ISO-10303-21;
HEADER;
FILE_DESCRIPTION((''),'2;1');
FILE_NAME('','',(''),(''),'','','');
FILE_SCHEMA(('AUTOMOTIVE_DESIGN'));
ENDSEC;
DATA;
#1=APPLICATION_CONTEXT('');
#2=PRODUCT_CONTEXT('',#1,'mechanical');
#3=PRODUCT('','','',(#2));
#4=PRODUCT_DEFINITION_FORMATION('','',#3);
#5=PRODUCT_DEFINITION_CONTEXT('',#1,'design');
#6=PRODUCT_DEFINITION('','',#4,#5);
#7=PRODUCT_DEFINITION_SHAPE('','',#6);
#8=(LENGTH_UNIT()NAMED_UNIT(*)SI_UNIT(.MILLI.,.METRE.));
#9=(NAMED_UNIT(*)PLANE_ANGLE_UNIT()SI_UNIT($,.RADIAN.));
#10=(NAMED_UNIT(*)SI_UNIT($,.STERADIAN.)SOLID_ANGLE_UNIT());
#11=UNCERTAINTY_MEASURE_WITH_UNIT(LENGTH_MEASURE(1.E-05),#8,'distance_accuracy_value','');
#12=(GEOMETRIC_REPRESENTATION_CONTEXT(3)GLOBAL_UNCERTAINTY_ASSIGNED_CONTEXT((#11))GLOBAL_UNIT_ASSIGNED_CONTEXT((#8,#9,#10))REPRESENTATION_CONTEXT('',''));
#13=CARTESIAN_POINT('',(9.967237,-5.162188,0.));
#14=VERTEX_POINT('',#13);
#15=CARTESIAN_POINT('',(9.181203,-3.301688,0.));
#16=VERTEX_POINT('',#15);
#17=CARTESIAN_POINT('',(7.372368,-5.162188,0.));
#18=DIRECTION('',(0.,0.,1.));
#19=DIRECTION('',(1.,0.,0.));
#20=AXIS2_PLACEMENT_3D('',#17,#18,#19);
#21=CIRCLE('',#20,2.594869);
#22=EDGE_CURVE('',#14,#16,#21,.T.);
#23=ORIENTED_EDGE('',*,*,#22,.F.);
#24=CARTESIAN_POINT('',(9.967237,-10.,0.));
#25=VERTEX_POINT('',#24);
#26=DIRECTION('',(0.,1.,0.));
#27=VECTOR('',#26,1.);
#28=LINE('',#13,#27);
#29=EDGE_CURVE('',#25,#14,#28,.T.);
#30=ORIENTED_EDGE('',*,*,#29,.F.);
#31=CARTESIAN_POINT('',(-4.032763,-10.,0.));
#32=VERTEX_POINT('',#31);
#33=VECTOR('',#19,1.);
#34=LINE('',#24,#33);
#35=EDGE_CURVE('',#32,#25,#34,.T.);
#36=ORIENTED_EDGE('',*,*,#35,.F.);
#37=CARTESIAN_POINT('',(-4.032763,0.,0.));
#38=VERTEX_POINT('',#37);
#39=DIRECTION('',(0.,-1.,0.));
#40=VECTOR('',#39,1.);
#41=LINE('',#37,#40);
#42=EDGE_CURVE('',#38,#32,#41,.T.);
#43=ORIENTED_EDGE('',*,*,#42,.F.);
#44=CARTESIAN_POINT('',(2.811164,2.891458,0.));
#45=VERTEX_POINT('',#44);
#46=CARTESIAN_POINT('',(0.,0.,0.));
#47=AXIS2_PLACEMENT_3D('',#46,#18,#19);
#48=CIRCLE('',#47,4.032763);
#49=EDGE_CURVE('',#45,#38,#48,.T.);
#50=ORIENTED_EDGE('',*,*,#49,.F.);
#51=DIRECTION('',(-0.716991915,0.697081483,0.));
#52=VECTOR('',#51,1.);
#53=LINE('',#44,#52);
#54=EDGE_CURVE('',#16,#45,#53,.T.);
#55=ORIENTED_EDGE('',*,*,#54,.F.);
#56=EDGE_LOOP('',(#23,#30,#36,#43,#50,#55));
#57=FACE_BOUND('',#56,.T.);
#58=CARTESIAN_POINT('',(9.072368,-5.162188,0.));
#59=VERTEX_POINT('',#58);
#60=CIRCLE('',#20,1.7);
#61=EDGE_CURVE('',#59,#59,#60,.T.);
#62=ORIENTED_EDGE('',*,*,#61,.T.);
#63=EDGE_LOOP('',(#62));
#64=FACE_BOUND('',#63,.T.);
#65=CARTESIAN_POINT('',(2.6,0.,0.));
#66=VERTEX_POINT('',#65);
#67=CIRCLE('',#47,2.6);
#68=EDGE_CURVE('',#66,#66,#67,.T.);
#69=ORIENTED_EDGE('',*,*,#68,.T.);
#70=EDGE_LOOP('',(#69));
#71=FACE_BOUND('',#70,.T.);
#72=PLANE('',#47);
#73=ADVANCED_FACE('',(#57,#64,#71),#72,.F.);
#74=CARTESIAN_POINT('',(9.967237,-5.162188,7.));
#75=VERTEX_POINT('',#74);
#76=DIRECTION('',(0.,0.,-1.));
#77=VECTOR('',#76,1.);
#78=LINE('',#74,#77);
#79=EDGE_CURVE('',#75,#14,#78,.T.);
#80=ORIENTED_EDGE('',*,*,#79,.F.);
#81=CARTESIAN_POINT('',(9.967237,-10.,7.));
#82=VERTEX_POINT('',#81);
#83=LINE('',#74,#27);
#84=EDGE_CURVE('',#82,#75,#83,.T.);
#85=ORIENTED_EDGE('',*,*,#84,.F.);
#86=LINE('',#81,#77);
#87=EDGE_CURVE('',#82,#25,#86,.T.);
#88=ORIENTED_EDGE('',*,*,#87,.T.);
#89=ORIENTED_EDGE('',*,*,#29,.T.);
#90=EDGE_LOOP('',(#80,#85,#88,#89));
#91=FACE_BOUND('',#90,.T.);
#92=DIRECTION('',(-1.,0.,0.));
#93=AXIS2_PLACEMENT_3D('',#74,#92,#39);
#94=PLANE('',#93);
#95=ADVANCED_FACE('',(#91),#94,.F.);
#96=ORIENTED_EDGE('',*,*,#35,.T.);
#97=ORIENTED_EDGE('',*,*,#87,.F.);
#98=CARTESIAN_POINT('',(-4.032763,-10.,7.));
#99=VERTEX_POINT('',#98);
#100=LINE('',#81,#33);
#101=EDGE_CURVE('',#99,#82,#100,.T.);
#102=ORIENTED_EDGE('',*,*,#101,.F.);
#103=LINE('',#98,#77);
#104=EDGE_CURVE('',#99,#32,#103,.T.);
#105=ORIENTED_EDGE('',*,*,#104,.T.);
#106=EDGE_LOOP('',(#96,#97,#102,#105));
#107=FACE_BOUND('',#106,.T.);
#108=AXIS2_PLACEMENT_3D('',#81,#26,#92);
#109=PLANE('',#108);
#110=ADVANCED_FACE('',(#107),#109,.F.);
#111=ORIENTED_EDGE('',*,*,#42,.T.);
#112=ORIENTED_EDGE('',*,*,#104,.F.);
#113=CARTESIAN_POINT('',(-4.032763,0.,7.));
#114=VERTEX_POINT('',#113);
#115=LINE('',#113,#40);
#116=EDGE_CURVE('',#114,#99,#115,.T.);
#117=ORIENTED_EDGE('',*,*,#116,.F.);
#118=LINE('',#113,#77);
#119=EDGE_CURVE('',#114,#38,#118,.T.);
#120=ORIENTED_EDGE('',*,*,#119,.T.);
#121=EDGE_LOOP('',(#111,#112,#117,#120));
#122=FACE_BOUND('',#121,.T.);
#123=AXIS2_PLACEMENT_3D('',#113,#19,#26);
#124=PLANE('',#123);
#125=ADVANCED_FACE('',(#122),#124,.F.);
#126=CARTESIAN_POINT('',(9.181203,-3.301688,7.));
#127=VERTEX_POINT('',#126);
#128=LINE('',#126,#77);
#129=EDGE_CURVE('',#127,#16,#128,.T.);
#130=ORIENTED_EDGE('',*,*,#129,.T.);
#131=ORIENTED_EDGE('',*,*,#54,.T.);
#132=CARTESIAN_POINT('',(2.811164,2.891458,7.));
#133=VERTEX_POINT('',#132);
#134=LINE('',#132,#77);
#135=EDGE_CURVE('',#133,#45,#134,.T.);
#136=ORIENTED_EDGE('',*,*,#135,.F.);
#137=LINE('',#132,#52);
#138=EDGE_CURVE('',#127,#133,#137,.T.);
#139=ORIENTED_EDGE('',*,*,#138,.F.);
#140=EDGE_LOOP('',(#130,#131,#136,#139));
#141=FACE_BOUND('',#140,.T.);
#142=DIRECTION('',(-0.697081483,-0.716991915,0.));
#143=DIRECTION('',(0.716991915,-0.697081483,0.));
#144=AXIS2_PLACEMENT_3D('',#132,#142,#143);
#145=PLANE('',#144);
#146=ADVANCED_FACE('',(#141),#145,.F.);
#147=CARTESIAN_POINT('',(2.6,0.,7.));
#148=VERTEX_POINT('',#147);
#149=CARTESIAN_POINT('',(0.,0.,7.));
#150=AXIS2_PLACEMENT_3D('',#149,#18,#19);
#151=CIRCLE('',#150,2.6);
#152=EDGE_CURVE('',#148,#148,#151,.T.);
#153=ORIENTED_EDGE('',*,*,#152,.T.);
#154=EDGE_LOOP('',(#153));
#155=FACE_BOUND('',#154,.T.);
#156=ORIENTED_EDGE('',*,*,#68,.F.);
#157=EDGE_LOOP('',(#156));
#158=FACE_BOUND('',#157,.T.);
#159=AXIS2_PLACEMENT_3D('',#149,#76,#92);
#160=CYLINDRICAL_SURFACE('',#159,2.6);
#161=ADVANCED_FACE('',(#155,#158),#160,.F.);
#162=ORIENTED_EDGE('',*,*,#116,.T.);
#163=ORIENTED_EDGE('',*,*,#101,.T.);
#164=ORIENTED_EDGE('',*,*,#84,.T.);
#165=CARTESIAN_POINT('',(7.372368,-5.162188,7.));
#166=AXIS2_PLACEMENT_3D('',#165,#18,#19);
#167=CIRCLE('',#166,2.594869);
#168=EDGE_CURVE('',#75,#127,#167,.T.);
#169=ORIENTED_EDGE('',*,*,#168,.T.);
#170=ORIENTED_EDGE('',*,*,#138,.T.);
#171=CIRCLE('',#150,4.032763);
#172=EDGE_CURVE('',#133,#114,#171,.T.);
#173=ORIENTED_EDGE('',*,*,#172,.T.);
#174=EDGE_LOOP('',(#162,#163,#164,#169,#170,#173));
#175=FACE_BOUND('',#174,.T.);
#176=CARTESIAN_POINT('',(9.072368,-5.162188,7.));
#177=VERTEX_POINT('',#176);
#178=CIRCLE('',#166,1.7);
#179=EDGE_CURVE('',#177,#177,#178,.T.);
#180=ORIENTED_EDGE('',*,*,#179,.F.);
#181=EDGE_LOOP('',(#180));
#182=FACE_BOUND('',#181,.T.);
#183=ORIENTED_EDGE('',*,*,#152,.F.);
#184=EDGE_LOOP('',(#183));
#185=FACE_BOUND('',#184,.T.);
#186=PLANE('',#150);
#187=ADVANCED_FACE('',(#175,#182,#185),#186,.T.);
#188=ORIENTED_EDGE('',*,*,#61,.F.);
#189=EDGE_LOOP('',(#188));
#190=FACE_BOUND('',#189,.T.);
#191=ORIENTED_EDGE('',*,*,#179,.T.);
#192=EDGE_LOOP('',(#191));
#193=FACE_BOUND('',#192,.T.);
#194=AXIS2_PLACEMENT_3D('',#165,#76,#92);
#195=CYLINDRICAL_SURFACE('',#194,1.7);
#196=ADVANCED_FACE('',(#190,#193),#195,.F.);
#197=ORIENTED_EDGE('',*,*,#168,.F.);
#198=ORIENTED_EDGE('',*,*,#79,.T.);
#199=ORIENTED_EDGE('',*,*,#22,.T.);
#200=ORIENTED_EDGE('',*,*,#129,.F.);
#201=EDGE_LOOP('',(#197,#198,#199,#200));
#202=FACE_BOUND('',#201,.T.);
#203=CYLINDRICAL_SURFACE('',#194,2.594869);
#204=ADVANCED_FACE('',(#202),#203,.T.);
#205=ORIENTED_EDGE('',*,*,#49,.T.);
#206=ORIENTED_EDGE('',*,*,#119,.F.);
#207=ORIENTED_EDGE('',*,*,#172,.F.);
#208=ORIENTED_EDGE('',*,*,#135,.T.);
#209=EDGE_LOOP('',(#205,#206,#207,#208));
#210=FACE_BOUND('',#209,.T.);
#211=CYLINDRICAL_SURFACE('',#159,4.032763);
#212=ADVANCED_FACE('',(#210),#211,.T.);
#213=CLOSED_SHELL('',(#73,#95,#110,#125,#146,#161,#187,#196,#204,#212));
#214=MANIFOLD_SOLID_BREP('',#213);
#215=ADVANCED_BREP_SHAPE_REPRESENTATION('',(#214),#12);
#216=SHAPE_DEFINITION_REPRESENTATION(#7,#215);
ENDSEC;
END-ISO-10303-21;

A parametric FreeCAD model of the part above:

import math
import FreeCAD as App
import Part
import Sketcher

V = App.Vector
Q = App.Units.Quantity

doc = App.newDocument("Part")
body = doc.addObject("PartDesign::Body", "Body")

sketch1 = doc.addObject("Sketcher::SketchObject", "Sketch")
body.addObject(sketch1)
sketch1.AttachmentSupport = (doc.XY_Plane, [""])
sketch1.MapMode = "FlatFace"
sketch1.addGeometry([
    Part.LineSegment(V(9.2, -3.3, 0), V(2.8, 2.9, 0)),
    Part.ArcOfCircle(Part.Circle(V(0, 0, 0), V(0, 0, 1), 4), math.radians(46), math.radians(180)),
    Part.LineSegment(V(-4, 0, 0), V(-4, -10, 0)),
    Part.LineSegment(V(-4, -10, 0), V(10, -10, 0)),
    Part.LineSegment(V(10, -10, 0), V(10, -5.2, 0)),
    Part.ArcOfCircle(Part.Circle(V(7.4, -5.2, 0), V(0, 0, 1), 2.6), math.radians(0), math.radians(46)),
    Part.Circle(V(7.4, -5.2, 0), V(0, 0, 1), 1.7),
    Part.Circle(V(0, 0, 0), V(0, 0, 1), 2.6),
], False)
sketch1.addConstraint([
    Sketcher.Constraint("Tangent", 0, 2, 1, 1),
    Sketcher.Constraint("Tangent", 1, 2, 2, 1),
    Sketcher.Constraint("Coincident", 2, 2, 3, 1),
    Sketcher.Constraint("Coincident", 3, 2, 4, 1),
    Sketcher.Constraint("Tangent", 4, 2, 5, 1),
    Sketcher.Constraint("Tangent", 5, 2, 0, 1),
    Sketcher.Constraint("Vertical", 2),
    Sketcher.Constraint("Horizontal", 3),
    Sketcher.Constraint("Vertical", 4),
    Sketcher.Constraint("Coincident", 1, 3, -1, 1),
    Sketcher.Constraint("Coincident", 7, 3, -1, 1),
    Sketcher.Constraint("Coincident", 6, 3, 5, 3),
    Sketcher.Constraint("Diameter", 6, Q("3.4 mm")),
    Sketcher.Constraint("Diameter", 7, Q("5.2 mm")),
    Sketcher.Constraint("DistanceX", 3, 1, 3, 2, Q("14 mm")),
    Sketcher.Constraint("DistanceY", 2, 2, 2, 1, Q("10 mm")),
    Sketcher.Constraint("Radius", 5, Q("2.594869 mm")),
    Sketcher.Constraint("Radius", 1, Q("4.032763 mm")),
    Sketcher.Constraint("DistanceY", 4, 2, 5, 2, Q("1.8605 mm")),
])
pad1 = doc.addObject("PartDesign::Pad", "Pad")
body.addObject(pad1)
pad1.Profile = sketch1
pad1.Length = 7

doc.recompute()
